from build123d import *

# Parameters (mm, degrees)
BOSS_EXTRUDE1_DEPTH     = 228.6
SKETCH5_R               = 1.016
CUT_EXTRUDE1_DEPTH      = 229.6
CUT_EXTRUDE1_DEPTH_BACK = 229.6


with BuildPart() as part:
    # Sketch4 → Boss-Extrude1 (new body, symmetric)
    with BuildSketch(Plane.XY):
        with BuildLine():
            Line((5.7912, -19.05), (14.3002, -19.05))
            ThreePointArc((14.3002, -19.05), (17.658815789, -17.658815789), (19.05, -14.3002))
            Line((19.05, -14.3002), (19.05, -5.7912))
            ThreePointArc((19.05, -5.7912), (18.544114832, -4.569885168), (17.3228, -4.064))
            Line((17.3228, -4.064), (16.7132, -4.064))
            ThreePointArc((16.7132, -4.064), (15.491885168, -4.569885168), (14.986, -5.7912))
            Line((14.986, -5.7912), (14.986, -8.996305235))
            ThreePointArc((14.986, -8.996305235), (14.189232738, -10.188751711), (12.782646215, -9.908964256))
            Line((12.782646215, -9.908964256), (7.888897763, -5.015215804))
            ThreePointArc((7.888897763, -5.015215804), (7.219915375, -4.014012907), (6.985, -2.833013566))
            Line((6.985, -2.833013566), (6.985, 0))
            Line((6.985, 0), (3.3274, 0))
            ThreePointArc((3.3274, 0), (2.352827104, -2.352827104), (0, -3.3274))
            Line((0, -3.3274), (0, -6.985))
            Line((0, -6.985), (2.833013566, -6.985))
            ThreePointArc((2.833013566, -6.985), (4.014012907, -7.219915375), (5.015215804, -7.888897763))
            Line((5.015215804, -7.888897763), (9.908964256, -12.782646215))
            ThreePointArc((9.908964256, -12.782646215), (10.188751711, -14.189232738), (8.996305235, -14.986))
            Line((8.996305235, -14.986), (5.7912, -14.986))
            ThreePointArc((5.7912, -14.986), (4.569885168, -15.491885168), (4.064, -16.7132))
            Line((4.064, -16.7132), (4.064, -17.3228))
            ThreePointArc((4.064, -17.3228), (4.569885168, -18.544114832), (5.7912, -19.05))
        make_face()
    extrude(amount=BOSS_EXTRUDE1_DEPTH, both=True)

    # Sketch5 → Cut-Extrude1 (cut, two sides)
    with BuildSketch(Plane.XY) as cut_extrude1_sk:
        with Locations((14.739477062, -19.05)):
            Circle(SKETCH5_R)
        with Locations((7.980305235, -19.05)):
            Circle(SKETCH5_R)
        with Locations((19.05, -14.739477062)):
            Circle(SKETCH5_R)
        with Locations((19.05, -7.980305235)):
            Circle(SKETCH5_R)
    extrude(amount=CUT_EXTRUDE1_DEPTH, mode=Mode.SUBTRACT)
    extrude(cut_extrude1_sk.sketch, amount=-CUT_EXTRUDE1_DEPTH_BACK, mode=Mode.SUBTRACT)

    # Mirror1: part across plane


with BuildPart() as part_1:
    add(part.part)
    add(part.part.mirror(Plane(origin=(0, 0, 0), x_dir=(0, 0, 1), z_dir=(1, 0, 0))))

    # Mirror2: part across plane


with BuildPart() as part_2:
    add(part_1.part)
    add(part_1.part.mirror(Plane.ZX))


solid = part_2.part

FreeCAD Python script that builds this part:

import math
import FreeCAD as App
import Part
import Sketcher
from FreeCAD import Vector
Q = App.Units.Quantity

doc = App.newDocument("Part")
body = doc.addObject("PartDesign::Body", "Body")

sketch1 = doc.addObject("Sketcher::SketchObject", "Sketch")
body.addObject(sketch1)
sketch1.AttachmentSupport = (doc.XY_Plane, [""])
sketch1.MapMode = "FlatFace"
sketch1.addGeometry([
    Part.LineSegment(Vector(5.7912, -19.05, 0), Vector(14.3002, -19.05, 0)),
    Part.ArcOfCircle(Part.Circle(Vector(14.3002, -14.3002, 0), Vector(0, 0, 1), 4.7498), math.radians(-90), math.radians(0)),
    Part.LineSegment(Vector(19.05, -14.3002, 0), Vector(19.05, -5.7912, 0)),
    Part.ArcOfCircle(Part.Circle(Vector(17.3228, -5.7912, 0), Vector(0, 0, 1), 1.7272), math.radians(0), math.radians(90)),
    Part.LineSegment(Vector(17.3228, -4.064, 0), Vector(16.7132, -4.064, 0)),
    Part.ArcOfCircle(Part.Circle(Vector(16.7132, -5.7912, 0), Vector(0, 0, 1), 1.7272), math.radians(90), math.radians(180)),
    Part.LineSegment(Vector(14.986, -5.7912, 0), Vector(14.986, -8.996305, 0)),
    Part.ArcOfCircle(Part.Circle(Vector(13.695305, -8.996305, 0), Vector(0, 0, 1), 1.290695), math.radians(-135), math.radians(0)),
    Part.LineSegment(Vector(12.782646, -9.908964, 0), Vector(7.888898, -5.015216, 0)),
    Part.ArcOfCircle(Part.Circle(Vector(10.0711, -2.833014, 0), Vector(0, 0, 1), 3.0861), math.radians(-180), math.radians(-135)),
    Part.LineSegment(Vector(6.985, -2.833014, 0), Vector(6.985, 0, 0)),
    Part.LineSegment(Vector(6.985, 0, 0), Vector(3.3274, 0, 0)),
    Part.ArcOfCircle(Part.Circle(Vector(0, 0, 0), Vector(0, 0, 1), 3.3274), math.radians(-90), math.radians(0)),
    Part.LineSegment(Vector(0, -3.3274, 0), Vector(0, -6.985, 0)),
    Part.LineSegment(Vector(0, -6.985, 0), Vector(2.833014, -6.985, 0)),
    Part.ArcOfCircle(Part.Circle(Vector(2.833014, -10.0711, 0), Vector(0, 0, 1), 3.0861), math.radians(45), math.radians(90)),
    Part.LineSegment(Vector(5.015216, -7.888898, 0), Vector(9.908964, -12.782646, 0)),
    Part.ArcOfCircle(Part.Circle(Vector(8.996305, -13.695305, 0), Vector(0, 0, 1), 1.290695), math.radians(-90), math.radians(45)),
    Part.LineSegment(Vector(8.996305, -14.986, 0), Vector(5.7912, -14.986, 0)),
    Part.ArcOfCircle(Part.Circle(Vector(5.7912, -16.7132, 0), Vector(0, 0, 1), 1.7272), math.radians(90), math.radians(180)),
    Part.LineSegment(Vector(4.064, -16.7132, 0), Vector(4.064, -17.3228, 0)),
    Part.ArcOfCircle(Part.Circle(Vector(5.7912, -17.3228, 0), Vector(0, 0, 1), 1.7272), math.radians(-180), math.radians(-90)),
], False)
sketch1.addConstraint([
    Sketcher.Constraint("Tangent", 0, 2, 1, 1),
    Sketcher.Constraint("Tangent", 1, 2, 2, 1),
    Sketcher.Constraint("Tangent", 2, 2, 3, 1),
    Sketcher.Constraint("Tangent", 3, 2, 4, 1),
    Sketcher.Constraint("Tangent", 4, 2, 5, 1),
    Sketcher.Constraint("Tangent", 5, 2, 6, 1),
    Sketcher.Constraint("Tangent", 6, 2, 7, 2),
    Sketcher.Constraint("Tangent", 7, 1, 8, 1),
    Sketcher.Constraint("Tangent", 8, 2, 9, 2),
    Sketcher.Constraint("Tangent", 9, 1, 10, 1),
    Sketcher.Constraint("Coincident", 10, 2, 11, 1),
    Sketcher.Constraint("Coincident", 11, 2, 12, 2),
    Sketcher.Constraint("Coincident", 12, 1, 13, 1),
    Sketcher.Constraint("Coincident", 13, 2, 14, 1),
    Sketcher.Constraint("Tangent", 14, 2, 15, 2),
    Sketcher.Constraint("Tangent", 15, 1, 16, 1),
    Sketcher.Constraint("Tangent", 16, 2, 17, 2),
    Sketcher.Constraint("Tangent", 17, 1, 18, 1),
    Sketcher.Constraint("Tangent", 18, 2, 19, 1),
    Sketcher.Constraint("Tangent", 19, 2, 20, 1),
    Sketcher.Constraint("Tangent", 20, 2, 21, 1),
    Sketcher.Constraint("Tangent", 21, 2, 0, 1),
    Sketcher.Constraint("Horizontal", 0),
    Sketcher.Constraint("Vertical", 2),
    Sketcher.Constraint("Horizontal", 4),
    Sketcher.Constraint("Vertical", 6),
    Sketcher.Constraint("Vertical", 10),
    Sketcher.Constraint("Horizontal", 11),
    Sketcher.Constraint("Vertical", 13),
    Sketcher.Constraint("Horizontal", 14),
    Sketcher.Constraint("Horizontal", 18),
    Sketcher.Constraint("Vertical", 20),
    Sketcher.Constraint("Coincident", 12, 3, -1, 1),
    Sketcher.Constraint("Equal", 3, 5),
    Sketcher.Constraint("Equal", 9, 15),
    Sketcher.Constraint("Equal", 7, 17),
    Sketcher.Constraint("Equal", 5, 19),
    Sketcher.Constraint("Equal", 19, 21),
    Sketcher.Constraint("PointOnObject", 10, 2, -1),
    Sketcher.Constraint("PointOnObject", 12, 1, -2),
    Sketcher.Constraint("Parallel", 8, 16),
    Sketcher.Constraint("Equal", 0, 2),
    Sketcher.Constraint("Equal", 18, 6),
    Sketcher.Constraint("Equal", 14, 10),
    Sketcher.Constraint("Equal", 11, 13),
    Sketcher.Constraint("Equal", 4, 20),
    Sketcher.Constraint("Equal", 8, 16),
    Sketcher.Constraint("Radius", 1, Q("0.187 in")),
    Sketcher.Constraint("Radius", 3, Q("0.068 in")),
    Sketcher.Constraint("Radius", 12, Q("0.131 in")),
    Sketcher.Constraint("Radius", 9, Q("0.1215 in")),
    Sketcher.Constraint("DistanceX", 0, 1, 0, 2, Q("0.335 in")),
    Sketcher.Constraint("DistanceX", 4, 2, 4, 1, Q("0.024 in")),
    Sketcher.Constraint("DistanceX", 11, 2, 11, 1, Q("0.144 in")),
    Sketcher.Constraint("DistanceY", 0, 2, -1, 1, Q("0.75 in")),
    Sketcher.Constraint("DistanceX", 17, 3, 7, 3, Q("0.185 in")),
    Sketcher.Constraint("Radius", 7, Q("1.290695 mm")),
])
pad1 = doc.addObject("PartDesign::Pad", "Pad")
body.addObject(pad1)
pad1.Profile = sketch1
pad1.Length = Q("18 in")
pad1.Midplane = True

sketch2 = doc.addObject("Sketcher::SketchObject", "Sketch001")
body.addObject(sketch2)
sketch2.AttachmentSupport = (doc.XY_Plane, [""])
sketch2.MapMode = "FlatFace"
sketch2.addGeometry([
    Part.Circle(Vector(14.739477, -19.05, 0), Vector(0, 0, 1), 1.016),
    Part.Circle(Vector(7.980305, -19.05, 0), Vector(0, 0, 1), 1.016),
    Part.Circle(Vector(19.05, -14.739477, 0), Vector(0, 0, 1), 1.016),
    Part.Circle(Vector(19.05, -7.980305, 0), Vector(0, 0, 1), 1.016),
], False)
sketch2.addConstraint([
    Sketcher.Constraint("Equal", 0, 1),
    Sketcher.Constraint("Equal", 1, 2),
    Sketcher.Constraint("Equal", 2, 3),
    Sketcher.Constraint("Horizontal", 0, 3, 1, 3),
    Sketcher.Constraint("Vertical", 2, 3, 3, 3),
    Sketcher.Constraint("Diameter", 0, Q("0.08 in")),
    Sketcher.Constraint("DistanceY", 0, 3, -1, 1, Q("0.75 in")),
    Sketcher.Constraint("DistanceX", -1, 1, 2, 3, Q("0.75 in")),
    Sketcher.Constraint("DistanceX", 1, 3, 0, 3, Q("6.759172 mm")),
    Sketcher.Constraint("DistanceY", 2, 3, 3, 3, Q("6.759172 mm")),
    Sketcher.Constraint("DistanceX", -1, 1, 0, 3, Q("14.739477 mm")),
    Sketcher.Constraint("DistanceY", 2, 3, -1, 1, Q("14.739477 mm")),
])
pocket1 = doc.addObject("PartDesign::Pocket", "Pocket")
body.addObject(pocket1)
pocket1.Profile = sketch2
pocket1.Type = "ThroughAll"
pocket1.Midplane = True
body2 = doc.addObject("PartDesign::Body", "Body001")
doc.recompute()

body2.BaseFeature = body
doc.recompute()

mirroring = doc.addObject("Part::Mirroring", "Mirroring")
mirroring.Source = body
mirroring.Base = Vector(0, 0, 0)
mirroring.Normal = Vector(1, 0, 0)
body3 = doc.addObject("PartDesign::Body", "Body002")
body3.BaseFeature = mirroring
boolean = doc.addObject("PartDesign::Boolean", "Boolean")
body2.addObject(boolean)
boolean.Type = "Fuse"
boolean.addObjects([body3])
doc.recompute()
body4 = doc.addObject("PartDesign::Body", "Body003")
doc.recompute()

body4.BaseFeature = body2
doc.recompute()

mirroring2 = doc.addObject("Part::Mirroring", "Mirroring001")
mirroring2.Source = body2
mirroring2.Base = Vector(0, 0, 0)
mirroring2.Normal = Vector(0, 1, 0)
body5 = doc.addObject("PartDesign::Body", "Body004")
body5.BaseFeature = mirroring2
boolean2 = doc.addObject("PartDesign::Boolean", "Boolean001")
body4.addObject(boolean2)
boolean2.Type = "Fuse"
boolean2.addObjects([body5])
doc.recompute()
mirroring.Visibility = False
mirroring2.Visibility = False

doc.recompute()
